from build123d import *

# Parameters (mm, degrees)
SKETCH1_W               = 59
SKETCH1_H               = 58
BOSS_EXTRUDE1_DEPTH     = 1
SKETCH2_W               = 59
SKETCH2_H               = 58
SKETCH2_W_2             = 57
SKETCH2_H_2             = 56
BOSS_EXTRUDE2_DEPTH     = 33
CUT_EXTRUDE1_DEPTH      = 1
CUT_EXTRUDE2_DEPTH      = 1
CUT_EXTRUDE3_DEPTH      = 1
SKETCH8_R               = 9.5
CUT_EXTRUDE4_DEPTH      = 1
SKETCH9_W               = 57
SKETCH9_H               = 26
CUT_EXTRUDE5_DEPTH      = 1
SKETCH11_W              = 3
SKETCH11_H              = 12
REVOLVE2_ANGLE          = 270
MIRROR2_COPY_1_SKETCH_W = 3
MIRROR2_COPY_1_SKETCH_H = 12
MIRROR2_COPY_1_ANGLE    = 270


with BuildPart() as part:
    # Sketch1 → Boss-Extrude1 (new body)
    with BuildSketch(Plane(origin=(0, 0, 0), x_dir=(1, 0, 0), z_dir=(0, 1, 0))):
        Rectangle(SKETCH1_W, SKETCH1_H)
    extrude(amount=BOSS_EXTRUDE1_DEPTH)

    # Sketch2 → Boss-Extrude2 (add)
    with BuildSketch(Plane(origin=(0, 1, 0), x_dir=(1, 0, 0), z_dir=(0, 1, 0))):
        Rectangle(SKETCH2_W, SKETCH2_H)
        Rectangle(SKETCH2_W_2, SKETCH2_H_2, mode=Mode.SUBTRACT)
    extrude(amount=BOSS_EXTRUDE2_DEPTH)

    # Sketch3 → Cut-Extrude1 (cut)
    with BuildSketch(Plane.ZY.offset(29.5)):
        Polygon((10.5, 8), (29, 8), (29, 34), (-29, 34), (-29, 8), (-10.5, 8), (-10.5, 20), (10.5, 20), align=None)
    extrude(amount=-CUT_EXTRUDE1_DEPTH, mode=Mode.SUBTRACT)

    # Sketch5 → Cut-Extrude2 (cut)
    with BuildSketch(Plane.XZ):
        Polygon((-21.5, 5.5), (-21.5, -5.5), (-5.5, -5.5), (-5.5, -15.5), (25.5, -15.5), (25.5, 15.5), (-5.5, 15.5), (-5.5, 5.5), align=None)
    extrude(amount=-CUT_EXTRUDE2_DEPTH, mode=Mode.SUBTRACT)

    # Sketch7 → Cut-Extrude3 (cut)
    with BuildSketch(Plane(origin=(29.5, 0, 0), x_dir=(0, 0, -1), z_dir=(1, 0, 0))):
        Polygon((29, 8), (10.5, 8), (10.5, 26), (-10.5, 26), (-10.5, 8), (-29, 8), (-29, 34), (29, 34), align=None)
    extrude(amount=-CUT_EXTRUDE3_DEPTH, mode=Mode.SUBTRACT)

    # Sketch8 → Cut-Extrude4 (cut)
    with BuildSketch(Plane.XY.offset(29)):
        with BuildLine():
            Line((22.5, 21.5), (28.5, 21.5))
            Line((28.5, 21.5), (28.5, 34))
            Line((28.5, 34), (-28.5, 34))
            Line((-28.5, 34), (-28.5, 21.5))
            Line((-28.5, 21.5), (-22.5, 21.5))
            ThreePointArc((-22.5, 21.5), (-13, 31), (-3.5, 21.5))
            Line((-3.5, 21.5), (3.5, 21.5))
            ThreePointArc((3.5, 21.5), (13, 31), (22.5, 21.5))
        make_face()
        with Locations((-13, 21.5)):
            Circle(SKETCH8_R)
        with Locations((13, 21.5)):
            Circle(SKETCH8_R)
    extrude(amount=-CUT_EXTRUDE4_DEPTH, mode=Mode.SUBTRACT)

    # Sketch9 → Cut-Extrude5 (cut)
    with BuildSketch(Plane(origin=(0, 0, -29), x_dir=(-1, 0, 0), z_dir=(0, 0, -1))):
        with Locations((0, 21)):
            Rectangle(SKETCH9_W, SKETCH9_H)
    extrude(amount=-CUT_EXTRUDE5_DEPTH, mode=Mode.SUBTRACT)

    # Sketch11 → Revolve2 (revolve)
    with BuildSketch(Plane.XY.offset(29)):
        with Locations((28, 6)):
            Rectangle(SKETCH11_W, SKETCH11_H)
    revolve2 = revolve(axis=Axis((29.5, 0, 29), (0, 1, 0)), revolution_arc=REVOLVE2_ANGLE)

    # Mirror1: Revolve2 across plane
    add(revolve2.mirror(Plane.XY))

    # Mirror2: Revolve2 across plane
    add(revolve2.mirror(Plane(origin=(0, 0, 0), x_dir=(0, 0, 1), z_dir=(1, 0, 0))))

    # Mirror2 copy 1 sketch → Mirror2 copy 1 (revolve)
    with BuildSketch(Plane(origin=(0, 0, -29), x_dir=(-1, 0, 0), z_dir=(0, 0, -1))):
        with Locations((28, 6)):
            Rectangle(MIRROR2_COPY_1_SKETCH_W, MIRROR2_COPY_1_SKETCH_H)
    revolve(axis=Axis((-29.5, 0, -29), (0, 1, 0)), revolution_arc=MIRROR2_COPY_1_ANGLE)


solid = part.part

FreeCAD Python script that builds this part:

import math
import FreeCAD as App
import Part
import Sketcher

V = App.Vector

doc = App.newDocument("Part")
body = doc.addObject("PartDesign::Body", "Body")

sketch1 = doc.addObject("Sketcher::SketchObject", "Sketch")
body.addObject(sketch1)
sketch1.AttachmentSupport = (doc.XZ_Plane, [""])
sketch1.MapMode = "FlatFace"
sketch1.addGeometry([
    Part.LineSegment(V(-30, -29, 0), V(-30, 29, 0)),
    Part.LineSegment(V(-30, 29, 0), V(30, 29, 0)),
    Part.LineSegment(V(30, 29, 0), V(30, -29, 0)),
    Part.LineSegment(V(30, -29, 0), V(-30, -29, 0)),
], False)
sketch1.addConstraint([
    Sketcher.Constraint("Coincident", 0, 2, 1, 1),
    Sketcher.Constraint("Coincident", 1, 2, 2, 1),
    Sketcher.Constraint("Coincident", 2, 2, 3, 1),
    Sketcher.Constraint("Coincident", 3, 2, 0, 1),
    Sketcher.Constraint("Vertical", 0),
    Sketcher.Constraint("Horizontal", 1),
    Sketcher.Constraint("Vertical", 2),
    Sketcher.Constraint("Horizontal", 3),
    Sketcher.Constraint("Symmetric", 0, 2, 2, 2, -1, 1),
    Sketcher.Constraint("DistanceX", 1, 1, 1, 2, 59.0),
    Sketcher.Constraint("DistanceY", 0, 1, 0, 2, 58.0),
])
pad1 = doc.addObject("PartDesign::Pad", "Pad")
body.addObject(pad1)
pad1.Profile = sketch1
pad1.Length = 1
pad1.Reversed = True

sketch2 = doc.addObject("Sketcher::SketchObject", "Sketch001")
body.addObject(sketch2)
sketch2.AttachmentSupport = (doc.XZ_Plane, [""])
sketch2.MapMode = "FlatFace"
sketch2.AttachmentOffset = App.Placement(V(0, 0, -1), App.Rotation())
sketch2.addGeometry([
    Part.LineSegment(V(-30, -29, 0), V(-30, 29, 0)),
    Part.LineSegment(V(-30, 29, 0), V(30, 29, 0)),
    Part.LineSegment(V(30, 29, 0), V(30, -29, 0)),
    Part.LineSegment(V(30, -29, 0), V(-30, -29, 0)),
    Part.LineSegment(V(28, 28, 0), V(-28, 28, 0)),
    Part.LineSegment(V(-28, 28, 0), V(-28, -28, 0)),
    Part.LineSegment(V(-28, -28, 0), V(28, -28, 0)),
    Part.LineSegment(V(28, -28, 0), V(28, 28, 0)),
], False)
sketch2.addConstraint([
    Sketcher.Constraint("Coincident", 0, 2, 1, 1),
    Sketcher.Constraint("Coincident", 1, 2, 2, 1),
    Sketcher.Constraint("Coincident", 2, 2, 3, 1),
    Sketcher.Constraint("Coincident", 3, 2, 0, 1),
    Sketcher.Constraint("Coincident", 4, 2, 5, 1),
    Sketcher.Constraint("Coincident", 5, 2, 6, 1),
    Sketcher.Constraint("Coincident", 6, 2, 7, 1),
    Sketcher.Constraint("Coincident", 7, 2, 4, 1),
    Sketcher.Constraint("Vertical", 0),
    Sketcher.Constraint("Horizontal", 1),
    Sketcher.Constraint("Vertical", 2),
    Sketcher.Constraint("Horizontal", 3),
    Sketcher.Constraint("Horizontal", 4),
    Sketcher.Constraint("Vertical", 5),
    Sketcher.Constraint("Horizontal", 6),
    Sketcher.Constraint("Vertical", 7),
    Sketcher.Constraint("Symmetric", 0, 2, 2, 2, -1, 1),
    Sketcher.Constraint("Symmetric", 4, 2, 6, 2, -1, 1),
    Sketcher.Constraint("DistanceX", 1, 1, 1, 2, 59.0),
    Sketcher.Constraint("DistanceX", 4, 2, 4, 1, 57.0),
    Sketcher.Constraint("DistanceY", 0, 1, 0, 2, 58.0),
    Sketcher.Constraint("DistanceY", 5, 2, 5, 1, 56.0),
])
pad2 = doc.addObject("PartDesign::Pad", "Pad001")
body.addObject(pad2)
pad2.Profile = sketch2
pad2.Length = 33
pad2.Reversed = True

sketch3 = doc.addObject("Sketcher::SketchObject", "Sketch002")
body.addObject(sketch3)
sketch3.AttachmentSupport = (doc.YZ_Plane, [""])
sketch3.MapMode = "FlatFace"
sketch3.AttachmentOffset = App.Placement(V(0, 0, -29.5), App.Rotation())
sketch3.addGeometry([
    Part.LineSegment(V(8, 10, 0), V(8, 29, 0)),
    Part.LineSegment(V(8, 29, 0), V(34, 29, 0)),
    Part.LineSegment(V(34, 29, 0), V(34, -29, 0)),
    Part.LineSegment(V(34, -29, 0), V(8, -29, 0)),
    Part.LineSegment(V(8, -29, 0), V(8, -10, 0)),
    Part.LineSegment(V(8, -10, 0), V(20, -10, 0)),
    Part.LineSegment(V(20, -10, 0), V(20, 10, 0)),
    Part.LineSegment(V(20, 10, 0), V(8, 10, 0)),
], False)
sketch3.addConstraint([
    Sketcher.Constraint("Coincident", 0, 2, 1, 1),
    Sketcher.Constraint("Coincident", 1, 2, 2, 1),
    Sketcher.Constraint("Coincident", 2, 2, 3, 1),
    Sketcher.Constraint("Coincident", 3, 2, 4, 1),
    Sketcher.Constraint("Coincident", 4, 2, 5, 1),
    Sketcher.Constraint("Coincident", 5, 2, 6, 1),
    Sketcher.Constraint("Coincident", 6, 2, 7, 1),
    Sketcher.Constraint("Coincident", 7, 2, 0, 1),
    Sketcher.Constraint("Vertical", 0),
    Sketcher.Constraint("Horizontal", 1),
    Sketcher.Constraint("Vertical", 2),
    Sketcher.Constraint("Horizontal", 3),
    Sketcher.Constraint("Vertical", 4),
    Sketcher.Constraint("Horizontal", 5),
    Sketcher.Constraint("Vertical", 6),
    Sketcher.Constraint("Horizontal", 7),
    Sketcher.Constraint("Symmetric", 0, 2, 3, 2, -1),
    Sketcher.Constraint("Equal", 0, 4),
    Sketcher.Constraint("DistanceX", 1, 1, 1, 2, 26.0),
    Sketcher.Constraint("DistanceX", 5, 1, 5, 2, 12.0),
    Sketcher.Constraint("DistanceY", 2, 2, 2, 1, 58.0),
    Sketcher.Constraint("DistanceY", 6, 1, 6, 2, 21.0),
    Sketcher.Constraint("DistanceX", -1, 1, 0, 2, 8.0),
])
pocket1 = doc.addObject("PartDesign::Pocket", "Pocket")
body.addObject(pocket1)
pocket1.Profile = sketch3
pocket1.Length = 1
pocket1.Reversed = True

sketch4 = doc.addObject("Sketcher::SketchObject", "Sketch003")
body.addObject(sketch4)
sketch4.AttachmentSupport = (doc.XZ_Plane, [""])
sketch4.MapMode = "FlatFace"
sketch4.addGeometry([
    Part.LineSegment(V(-22, 6, 0), V(-22, -6, 0)),
    Part.LineSegment(V(-22, -6, 0), V(-6, -6, 0)),
    Part.LineSegment(V(-6, -6, 0), V(-6, -16, 0)),
    Part.LineSegment(V(-6, -16, 0), V(26, -16, 0)),
    Part.LineSegment(V(26, -16, 0), V(26, 16, 0)),
    Part.LineSegment(V(26, 16, 0), V(-6, 16, 0)),
    Part.LineSegment(V(-6, 16, 0), V(-6, 6, 0)),
    Part.LineSegment(V(-6, 6, 0), V(-22, 6, 0)),
], False)
sketch4.addConstraint([
    Sketcher.Constraint("Coincident", 0, 2, 1, 1),
    Sketcher.Constraint("Coincident", 1, 2, 2, 1),
    Sketcher.Constraint("Coincident", 2, 2, 3, 1),
    Sketcher.Constraint("Coincident", 3, 2, 4, 1),
    Sketcher.Constraint("Coincident", 4, 2, 5, 1),
    Sketcher.Constraint("Coincident", 5, 2, 6, 1),
    Sketcher.Constraint("Coincident", 6, 2, 7, 1),
    Sketcher.Constraint("Coincident", 7, 2, 0, 1),
    Sketcher.Constraint("Vertical", 0),
    Sketcher.Constraint("Horizontal", 1),
    Sketcher.Constraint("Vertical", 2),
    Sketcher.Constraint("Horizontal", 3),
    Sketcher.Constraint("Vertical", 4),
    Sketcher.Constraint("Horizontal", 5),
    Sketcher.Constraint("Vertical", 6),
    Sketcher.Constraint("Horizontal", 7),
    Sketcher.Constraint("Symmetric", 2, 2, 5, 2, -1),
    Sketcher.Constraint("Equal", 5, 4),
    Sketcher.Constraint("Equal", 2, 6),
    Sketcher.Constraint("DistanceX", 1, 1, 1, 2, 16.0),
    Sketcher.Constraint("DistanceX", 3, 1, 3, 2, 31.0),
    Sketcher.Constraint("DistanceY", 0, 2, 0, 1, 11.0),
    Sketcher.Constraint("DistanceX", 0, 2, -1, 1, 21.5),
])
pocket2 = doc.addObject("PartDesign::Pocket", "Pocket001")
body.addObject(pocket2)
pocket2.Profile = sketch4
pocket2.Length = 1

sketch5 = doc.addObject("Sketcher::SketchObject", "Sketch004")
body.addObject(sketch5)
sketch5.AttachmentSupport = (doc.YZ_Plane, [""])
sketch5.MapMode = "FlatFace"
sketch5.AttachmentOffset = App.Placement(V(0, 0, 29.5), App.Rotation())
sketch5.addGeometry([
    Part.LineSegment(V(8, -10, 0), V(8, -29, 0)),
    Part.LineSegment(V(8, -29, 0), V(34, -29, 0)),
    Part.LineSegment(V(34, -29, 0), V(34, 29, 0)),
    Part.LineSegment(V(34, 29, 0), V(8, 29, 0)),
    Part.LineSegment(V(8, 29, 0), V(8, 10, 0)),
    Part.LineSegment(V(8, 10, 0), V(26, 10, 0)),
    Part.LineSegment(V(26, 10, 0), V(26, -10, 0)),
    Part.LineSegment(V(26, -10, 0), V(8, -10, 0)),
], False)
sketch5.addConstraint([
    Sketcher.Constraint("Coincident", 0, 2, 1, 1),
    Sketcher.Constraint("Coincident", 1, 2, 2, 1),
    Sketcher.Constraint("Coincident", 2, 2, 3, 1),
    Sketcher.Constraint("Coincident", 3, 2, 4, 1),
    Sketcher.Constraint("Coincident", 4, 2, 5, 1),
    Sketcher.Constraint("Coincident", 5, 2, 6, 1),
    Sketcher.Constraint("Coincident", 6, 2, 7, 1),
    Sketcher.Constraint("Coincident", 7, 2, 0, 1),
    Sketcher.Constraint("Vertical", 0),
    Sketcher.Constraint("Horizontal", 1),
    Sketcher.Constraint("Vertical", 2),
    Sketcher.Constraint("Horizontal", 3),
    Sketcher.Constraint("Vertical", 4),
    Sketcher.Constraint("Horizontal", 5),
    Sketcher.Constraint("Vertical", 6),
    Sketcher.Constraint("Horizontal", 7),
    Sketcher.Constraint("Symmetric", 0, 2, 3, 2, -1),
    Sketcher.Constraint("Equal", 0, 4),
    Sketcher.Constraint("DistanceX", 1, 1, 1, 2, 26.0),
    Sketcher.Constraint("DistanceX", 5, 1, 5, 2, 18.0),
    Sketcher.Constraint("DistanceY", 2, 1, 2, 2, 58.0),
    Sketcher.Constraint("DistanceY", 6, 2, 6, 1, 21.0),
    Sketcher.Constraint("DistanceX", -1, 1, 0, 2, 8.0),
])
pocket3 = doc.addObject("PartDesign::Pocket", "Pocket002")
body.addObject(pocket3)
pocket3.Profile = sketch5
pocket3.Length = 1

sketch6 = doc.addObject("Sketcher::SketchObject", "Sketch005")
body.addObject(sketch6)
sketch6.AttachmentSupport = (doc.XY_Plane, [""])
sketch6.MapMode = "FlatFace"
sketch6.AttachmentOffset = App.Placement(V(0, 0, 29), App.Rotation())
sketch6.addGeometry([
    Part.LineSegment(V(22, 22, 0), V(28, 22, 0)),
    Part.LineSegment(V(28, 22, 0), V(28, 34, 0)),
    Part.LineSegment(V(28, 34, 0), V(-28, 34, 0)),
    Part.LineSegment(V(-28, 34, 0), V(-28, 22, 0)),
    Part.LineSegment(V(-28, 22, 0), V(-22, 22, 0)),
    Part.ArcOfCircle(Part.Circle(V(-13, 22, 0), V(0, 0, 1), 10), math.radians(180), math.radians(360)),
    Part.LineSegment(V(-4, 22, 0), V(4, 22, 0)),
    Part.ArcOfCircle(Part.Circle(V(13, 22, 0), V(0, 0, 1), 10), math.radians(180), math.radians(360)),
], False)
sketch6.addConstraint([
    Sketcher.Constraint("Coincident", 0, 2, 1, 1),
    Sketcher.Constraint("Coincident", 1, 2, 2, 1),
    Sketcher.Constraint("Coincident", 2, 2, 3, 1),
    Sketcher.Constraint("Coincident", 3, 2, 4, 1),
    Sketcher.Constraint("Coincident", 4, 2, 5, 1),
    Sketcher.Constraint("Coincident", 5, 2, 6, 1),
    Sketcher.Constraint("Coincident", 6, 2, 7, 1),
    Sketcher.Constraint("Coincident", 7, 2, 0, 1),
    Sketcher.Constraint("Horizontal", 0),
    Sketcher.Constraint("Vertical", 1),
    Sketcher.Constraint("Horizontal", 2),
    Sketcher.Constraint("Vertical", 3),
    Sketcher.Constraint("Horizontal", 4),
    Sketcher.Constraint("Horizontal", 6),
    Sketcher.Constraint("Equal", 5, 7),
    Sketcher.Constraint("Symmetric", 5, 3, 7, 3, -2),
    Sketcher.Constraint("Symmetric", 0, 2, 3, 2, -2),
    Sketcher.Constraint("Horizontal", 7, 3, 0, 2),
    Sketcher.Constraint("Horizontal", 4, 2, 5, 2),
    Sketcher.Constraint("Radius", 5, 9.5),
    Sketcher.Constraint("DistanceX", 0, 1, 0, 2, 6.0),
    Sketcher.Constraint("DistanceX", 2, 2, 2, 1, 57.0),
    Sketcher.Constraint("DistanceY", 1, 1, 1, 2, 12.5),
    Sketcher.Constraint("DistanceY", -1, 1, 1, 2, 34.0),
])
pocket4 = doc.addObject("PartDesign::Pocket", "Pocket003")
body.addObject(pocket4)
pocket4.Profile = sketch6
pocket4.Length = 1

sketch7 = doc.addObject("Sketcher::SketchObject", "Sketch006")
body.addObject(sketch7)
sketch7.AttachmentSupport = (doc.XY_Plane, [""])
sketch7.MapMode = "FlatFace"
sketch7.AttachmentOffset = App.Placement(V(0, 0, -29), App.Rotation())
sketch7.addGeometry([
    Part.LineSegment(V(28, 34, 0), V(28, 8, 0)),
    Part.LineSegment(V(28, 8, 0), V(-28, 8, 0)),
    Part.LineSegment(V(-28, 8, 0), V(-28, 34, 0)),
    Part.LineSegment(V(-28, 34, 0), V(28, 34, 0)),
], False)
sketch7.addConstraint([
    Sketcher.Constraint("Coincident", 0, 2, 1, 1),
    Sketcher.Constraint("Coincident", 1, 2, 2, 1),
    Sketcher.Constraint("Coincident", 2, 2, 3, 1),
    Sketcher.Constraint("Coincident", 3, 2, 0, 1),
    Sketcher.Constraint("Vertical", 0),
    Sketcher.Constraint("Horizontal", 1),
    Sketcher.Constraint("Vertical", 2),
    Sketcher.Constraint("Horizontal", 3),
    Sketcher.Constraint("DistanceX", 1, 2, 1, 1, 57.0),
    Sketcher.Constraint("DistanceY", 0, 2, 0, 1, 26.0),
    Sketcher.Constraint("DistanceY", -1, 1, 0, 2, 8.0),
    Sketcher.Constraint("DistanceX", -1, 1, 0, 2, 28.5),
])
pocket5 = doc.addObject("PartDesign::Pocket", "Pocket004")
body.addObject(pocket5)
pocket5.Profile = sketch7
pocket5.Length = 1
pocket5.Reversed = True

sketch8 = doc.addObject("Sketcher::SketchObject", "Sketch007")
body.addObject(sketch8)
sketch8.AttachmentSupport = (doc.XY_Plane, [""])
sketch8.MapMode = "FlatFace"
sketch8.AttachmentOffset = App.Placement(V(0, 0, 29), App.Rotation())
sketch8.addGeometry([
    Part.LineSegment(V(26.5, 12, 0), V(26.5, 0, 0)),
    Part.LineSegment(V(26.5, 0, 0), V(29.5, 0, 0)),
    Part.LineSegment(V(29.5, 0, 0), V(29.5, 12, 0)),
    Part.LineSegment(V(29.5, 12, 0), V(26.5, 12, 0)),
], False)
sketch8.addGeometry(Part.LineSegment(V(29.5, 0, 0), V(29.5, 12, 0)), True)
sketch8.addConstraint([
    Sketcher.Constraint("Coincident", 0, 2, 1, 1),
    Sketcher.Constraint("Coincident", 1, 2, 2, 1),
    Sketcher.Constraint("Coincident", 2, 2, 3, 1),
    Sketcher.Constraint("Coincident", 3, 2, 0, 1),
    Sketcher.Constraint("Vertical", 0),
    Sketcher.Constraint("Horizontal", 1),
    Sketcher.Constraint("Vertical", 2),
    Sketcher.Constraint("Horizontal", 3),
    Sketcher.Constraint("Vertical", 4),
    Sketcher.Constraint("Coincident", 4, 1, 1, 2),
    Sketcher.Constraint("PointOnObject", 0, 2, -1),
    Sketcher.Constraint("Horizontal", 3, 2, 4, 2),
    Sketcher.Constraint("DistanceX", 1, 1, 1, 2, 3.0),
    Sketcher.Constraint("DistanceY", 0, 2, 0, 1, 12.0),
    Sketcher.Constraint("DistanceX", -1, 1, 0, 2, 26.5),
])
revolution = doc.addObject("PartDesign::Revolution", "Revolution")
body.addObject(revolution)
revolution.Profile = sketch8
revolution.ReferenceAxis = (sketch8, ["Axis0"])
revolution.Angle = 270
doc.recompute()

mirrored = doc.addObject("PartDesign::Mirrored", "Mirrored")
body.addObject(mirrored)
mirrored.Originals = [revolution]
mirrored.MirrorPlane = (doc.XY_Plane, [""])
body.Tip = mirrored
doc.recompute()

mirrored2 = doc.addObject("PartDesign::Mirrored", "Mirrored001")
body.addObject(mirrored2)
mirrored2.Originals = [revolution]
mirrored2.MirrorPlane = (doc.YZ_Plane, [""])
body.Tip = mirrored2

sketch9 = doc.addObject("Sketcher::SketchObject", "Sketch008")
body.addObject(sketch9)
sketch9.AttachmentSupport = (doc.XY_Plane, [""])
sketch9.MapMode = "FlatFace"
sketch9.AttachmentOffset = App.Placement(V(0, 0, -29), App.Rotation())
sketch9.addGeometry([
    Part.LineSegment(V(-26.5, 12, 0), V(-26.5, 0, 0)),
    Part.LineSegment(V(-26.5, 0, 0), V(-29.5, 0, 0)),
    Part.LineSegment(V(-29.5, 0, 0), V(-29.5, 12, 0)),
    Part.LineSegment(V(-29.5, 12, 0), V(-26.5, 12, 0)),
], False)
sketch9.addGeometry(Part.LineSegment(V(-29.5, 0, 0), V(-29.5, 12, 0)), True)
sketch9.addConstraint([
    Sketcher.Constraint("Coincident", 0, 2, 1, 1),
    Sketcher.Constraint("Coincident", 1, 2, 2, 1),
    Sketcher.Constraint("Coincident", 2, 2, 3, 1),
    Sketcher.Constraint("Coincident", 3, 2, 0, 1),
    Sketcher.Constraint("Vertical", 0),
    Sketcher.Constraint("Horizontal", 1),
    Sketcher.Constraint("Vertical", 2),
    Sketcher.Constraint("Horizontal", 3),
    Sketcher.Constraint("Vertical", 4),
    Sketcher.Constraint("Coincident", 4, 1, 1, 2),
    Sketcher.Constraint("PointOnObject", 0, 2, -1),
    Sketcher.Constraint("Horizontal", 3, 2, 4, 2),
    Sketcher.Constraint("DistanceX", 1, 2, 1, 1, 3.0),
    Sketcher.Constraint("DistanceY", 0, 2, 0, 1, 12.0),
    Sketcher.Constraint("DistanceX", 0, 2, -1, 1, 26.5),
])
revolution2 = doc.addObject("PartDesign::Revolution", "Revolution001")
body.addObject(revolution2)
revolution2.Profile = sketch9
revolution2.ReferenceAxis = (sketch9, ["Axis0"])
revolution2.Angle = 270

doc.recompute()
